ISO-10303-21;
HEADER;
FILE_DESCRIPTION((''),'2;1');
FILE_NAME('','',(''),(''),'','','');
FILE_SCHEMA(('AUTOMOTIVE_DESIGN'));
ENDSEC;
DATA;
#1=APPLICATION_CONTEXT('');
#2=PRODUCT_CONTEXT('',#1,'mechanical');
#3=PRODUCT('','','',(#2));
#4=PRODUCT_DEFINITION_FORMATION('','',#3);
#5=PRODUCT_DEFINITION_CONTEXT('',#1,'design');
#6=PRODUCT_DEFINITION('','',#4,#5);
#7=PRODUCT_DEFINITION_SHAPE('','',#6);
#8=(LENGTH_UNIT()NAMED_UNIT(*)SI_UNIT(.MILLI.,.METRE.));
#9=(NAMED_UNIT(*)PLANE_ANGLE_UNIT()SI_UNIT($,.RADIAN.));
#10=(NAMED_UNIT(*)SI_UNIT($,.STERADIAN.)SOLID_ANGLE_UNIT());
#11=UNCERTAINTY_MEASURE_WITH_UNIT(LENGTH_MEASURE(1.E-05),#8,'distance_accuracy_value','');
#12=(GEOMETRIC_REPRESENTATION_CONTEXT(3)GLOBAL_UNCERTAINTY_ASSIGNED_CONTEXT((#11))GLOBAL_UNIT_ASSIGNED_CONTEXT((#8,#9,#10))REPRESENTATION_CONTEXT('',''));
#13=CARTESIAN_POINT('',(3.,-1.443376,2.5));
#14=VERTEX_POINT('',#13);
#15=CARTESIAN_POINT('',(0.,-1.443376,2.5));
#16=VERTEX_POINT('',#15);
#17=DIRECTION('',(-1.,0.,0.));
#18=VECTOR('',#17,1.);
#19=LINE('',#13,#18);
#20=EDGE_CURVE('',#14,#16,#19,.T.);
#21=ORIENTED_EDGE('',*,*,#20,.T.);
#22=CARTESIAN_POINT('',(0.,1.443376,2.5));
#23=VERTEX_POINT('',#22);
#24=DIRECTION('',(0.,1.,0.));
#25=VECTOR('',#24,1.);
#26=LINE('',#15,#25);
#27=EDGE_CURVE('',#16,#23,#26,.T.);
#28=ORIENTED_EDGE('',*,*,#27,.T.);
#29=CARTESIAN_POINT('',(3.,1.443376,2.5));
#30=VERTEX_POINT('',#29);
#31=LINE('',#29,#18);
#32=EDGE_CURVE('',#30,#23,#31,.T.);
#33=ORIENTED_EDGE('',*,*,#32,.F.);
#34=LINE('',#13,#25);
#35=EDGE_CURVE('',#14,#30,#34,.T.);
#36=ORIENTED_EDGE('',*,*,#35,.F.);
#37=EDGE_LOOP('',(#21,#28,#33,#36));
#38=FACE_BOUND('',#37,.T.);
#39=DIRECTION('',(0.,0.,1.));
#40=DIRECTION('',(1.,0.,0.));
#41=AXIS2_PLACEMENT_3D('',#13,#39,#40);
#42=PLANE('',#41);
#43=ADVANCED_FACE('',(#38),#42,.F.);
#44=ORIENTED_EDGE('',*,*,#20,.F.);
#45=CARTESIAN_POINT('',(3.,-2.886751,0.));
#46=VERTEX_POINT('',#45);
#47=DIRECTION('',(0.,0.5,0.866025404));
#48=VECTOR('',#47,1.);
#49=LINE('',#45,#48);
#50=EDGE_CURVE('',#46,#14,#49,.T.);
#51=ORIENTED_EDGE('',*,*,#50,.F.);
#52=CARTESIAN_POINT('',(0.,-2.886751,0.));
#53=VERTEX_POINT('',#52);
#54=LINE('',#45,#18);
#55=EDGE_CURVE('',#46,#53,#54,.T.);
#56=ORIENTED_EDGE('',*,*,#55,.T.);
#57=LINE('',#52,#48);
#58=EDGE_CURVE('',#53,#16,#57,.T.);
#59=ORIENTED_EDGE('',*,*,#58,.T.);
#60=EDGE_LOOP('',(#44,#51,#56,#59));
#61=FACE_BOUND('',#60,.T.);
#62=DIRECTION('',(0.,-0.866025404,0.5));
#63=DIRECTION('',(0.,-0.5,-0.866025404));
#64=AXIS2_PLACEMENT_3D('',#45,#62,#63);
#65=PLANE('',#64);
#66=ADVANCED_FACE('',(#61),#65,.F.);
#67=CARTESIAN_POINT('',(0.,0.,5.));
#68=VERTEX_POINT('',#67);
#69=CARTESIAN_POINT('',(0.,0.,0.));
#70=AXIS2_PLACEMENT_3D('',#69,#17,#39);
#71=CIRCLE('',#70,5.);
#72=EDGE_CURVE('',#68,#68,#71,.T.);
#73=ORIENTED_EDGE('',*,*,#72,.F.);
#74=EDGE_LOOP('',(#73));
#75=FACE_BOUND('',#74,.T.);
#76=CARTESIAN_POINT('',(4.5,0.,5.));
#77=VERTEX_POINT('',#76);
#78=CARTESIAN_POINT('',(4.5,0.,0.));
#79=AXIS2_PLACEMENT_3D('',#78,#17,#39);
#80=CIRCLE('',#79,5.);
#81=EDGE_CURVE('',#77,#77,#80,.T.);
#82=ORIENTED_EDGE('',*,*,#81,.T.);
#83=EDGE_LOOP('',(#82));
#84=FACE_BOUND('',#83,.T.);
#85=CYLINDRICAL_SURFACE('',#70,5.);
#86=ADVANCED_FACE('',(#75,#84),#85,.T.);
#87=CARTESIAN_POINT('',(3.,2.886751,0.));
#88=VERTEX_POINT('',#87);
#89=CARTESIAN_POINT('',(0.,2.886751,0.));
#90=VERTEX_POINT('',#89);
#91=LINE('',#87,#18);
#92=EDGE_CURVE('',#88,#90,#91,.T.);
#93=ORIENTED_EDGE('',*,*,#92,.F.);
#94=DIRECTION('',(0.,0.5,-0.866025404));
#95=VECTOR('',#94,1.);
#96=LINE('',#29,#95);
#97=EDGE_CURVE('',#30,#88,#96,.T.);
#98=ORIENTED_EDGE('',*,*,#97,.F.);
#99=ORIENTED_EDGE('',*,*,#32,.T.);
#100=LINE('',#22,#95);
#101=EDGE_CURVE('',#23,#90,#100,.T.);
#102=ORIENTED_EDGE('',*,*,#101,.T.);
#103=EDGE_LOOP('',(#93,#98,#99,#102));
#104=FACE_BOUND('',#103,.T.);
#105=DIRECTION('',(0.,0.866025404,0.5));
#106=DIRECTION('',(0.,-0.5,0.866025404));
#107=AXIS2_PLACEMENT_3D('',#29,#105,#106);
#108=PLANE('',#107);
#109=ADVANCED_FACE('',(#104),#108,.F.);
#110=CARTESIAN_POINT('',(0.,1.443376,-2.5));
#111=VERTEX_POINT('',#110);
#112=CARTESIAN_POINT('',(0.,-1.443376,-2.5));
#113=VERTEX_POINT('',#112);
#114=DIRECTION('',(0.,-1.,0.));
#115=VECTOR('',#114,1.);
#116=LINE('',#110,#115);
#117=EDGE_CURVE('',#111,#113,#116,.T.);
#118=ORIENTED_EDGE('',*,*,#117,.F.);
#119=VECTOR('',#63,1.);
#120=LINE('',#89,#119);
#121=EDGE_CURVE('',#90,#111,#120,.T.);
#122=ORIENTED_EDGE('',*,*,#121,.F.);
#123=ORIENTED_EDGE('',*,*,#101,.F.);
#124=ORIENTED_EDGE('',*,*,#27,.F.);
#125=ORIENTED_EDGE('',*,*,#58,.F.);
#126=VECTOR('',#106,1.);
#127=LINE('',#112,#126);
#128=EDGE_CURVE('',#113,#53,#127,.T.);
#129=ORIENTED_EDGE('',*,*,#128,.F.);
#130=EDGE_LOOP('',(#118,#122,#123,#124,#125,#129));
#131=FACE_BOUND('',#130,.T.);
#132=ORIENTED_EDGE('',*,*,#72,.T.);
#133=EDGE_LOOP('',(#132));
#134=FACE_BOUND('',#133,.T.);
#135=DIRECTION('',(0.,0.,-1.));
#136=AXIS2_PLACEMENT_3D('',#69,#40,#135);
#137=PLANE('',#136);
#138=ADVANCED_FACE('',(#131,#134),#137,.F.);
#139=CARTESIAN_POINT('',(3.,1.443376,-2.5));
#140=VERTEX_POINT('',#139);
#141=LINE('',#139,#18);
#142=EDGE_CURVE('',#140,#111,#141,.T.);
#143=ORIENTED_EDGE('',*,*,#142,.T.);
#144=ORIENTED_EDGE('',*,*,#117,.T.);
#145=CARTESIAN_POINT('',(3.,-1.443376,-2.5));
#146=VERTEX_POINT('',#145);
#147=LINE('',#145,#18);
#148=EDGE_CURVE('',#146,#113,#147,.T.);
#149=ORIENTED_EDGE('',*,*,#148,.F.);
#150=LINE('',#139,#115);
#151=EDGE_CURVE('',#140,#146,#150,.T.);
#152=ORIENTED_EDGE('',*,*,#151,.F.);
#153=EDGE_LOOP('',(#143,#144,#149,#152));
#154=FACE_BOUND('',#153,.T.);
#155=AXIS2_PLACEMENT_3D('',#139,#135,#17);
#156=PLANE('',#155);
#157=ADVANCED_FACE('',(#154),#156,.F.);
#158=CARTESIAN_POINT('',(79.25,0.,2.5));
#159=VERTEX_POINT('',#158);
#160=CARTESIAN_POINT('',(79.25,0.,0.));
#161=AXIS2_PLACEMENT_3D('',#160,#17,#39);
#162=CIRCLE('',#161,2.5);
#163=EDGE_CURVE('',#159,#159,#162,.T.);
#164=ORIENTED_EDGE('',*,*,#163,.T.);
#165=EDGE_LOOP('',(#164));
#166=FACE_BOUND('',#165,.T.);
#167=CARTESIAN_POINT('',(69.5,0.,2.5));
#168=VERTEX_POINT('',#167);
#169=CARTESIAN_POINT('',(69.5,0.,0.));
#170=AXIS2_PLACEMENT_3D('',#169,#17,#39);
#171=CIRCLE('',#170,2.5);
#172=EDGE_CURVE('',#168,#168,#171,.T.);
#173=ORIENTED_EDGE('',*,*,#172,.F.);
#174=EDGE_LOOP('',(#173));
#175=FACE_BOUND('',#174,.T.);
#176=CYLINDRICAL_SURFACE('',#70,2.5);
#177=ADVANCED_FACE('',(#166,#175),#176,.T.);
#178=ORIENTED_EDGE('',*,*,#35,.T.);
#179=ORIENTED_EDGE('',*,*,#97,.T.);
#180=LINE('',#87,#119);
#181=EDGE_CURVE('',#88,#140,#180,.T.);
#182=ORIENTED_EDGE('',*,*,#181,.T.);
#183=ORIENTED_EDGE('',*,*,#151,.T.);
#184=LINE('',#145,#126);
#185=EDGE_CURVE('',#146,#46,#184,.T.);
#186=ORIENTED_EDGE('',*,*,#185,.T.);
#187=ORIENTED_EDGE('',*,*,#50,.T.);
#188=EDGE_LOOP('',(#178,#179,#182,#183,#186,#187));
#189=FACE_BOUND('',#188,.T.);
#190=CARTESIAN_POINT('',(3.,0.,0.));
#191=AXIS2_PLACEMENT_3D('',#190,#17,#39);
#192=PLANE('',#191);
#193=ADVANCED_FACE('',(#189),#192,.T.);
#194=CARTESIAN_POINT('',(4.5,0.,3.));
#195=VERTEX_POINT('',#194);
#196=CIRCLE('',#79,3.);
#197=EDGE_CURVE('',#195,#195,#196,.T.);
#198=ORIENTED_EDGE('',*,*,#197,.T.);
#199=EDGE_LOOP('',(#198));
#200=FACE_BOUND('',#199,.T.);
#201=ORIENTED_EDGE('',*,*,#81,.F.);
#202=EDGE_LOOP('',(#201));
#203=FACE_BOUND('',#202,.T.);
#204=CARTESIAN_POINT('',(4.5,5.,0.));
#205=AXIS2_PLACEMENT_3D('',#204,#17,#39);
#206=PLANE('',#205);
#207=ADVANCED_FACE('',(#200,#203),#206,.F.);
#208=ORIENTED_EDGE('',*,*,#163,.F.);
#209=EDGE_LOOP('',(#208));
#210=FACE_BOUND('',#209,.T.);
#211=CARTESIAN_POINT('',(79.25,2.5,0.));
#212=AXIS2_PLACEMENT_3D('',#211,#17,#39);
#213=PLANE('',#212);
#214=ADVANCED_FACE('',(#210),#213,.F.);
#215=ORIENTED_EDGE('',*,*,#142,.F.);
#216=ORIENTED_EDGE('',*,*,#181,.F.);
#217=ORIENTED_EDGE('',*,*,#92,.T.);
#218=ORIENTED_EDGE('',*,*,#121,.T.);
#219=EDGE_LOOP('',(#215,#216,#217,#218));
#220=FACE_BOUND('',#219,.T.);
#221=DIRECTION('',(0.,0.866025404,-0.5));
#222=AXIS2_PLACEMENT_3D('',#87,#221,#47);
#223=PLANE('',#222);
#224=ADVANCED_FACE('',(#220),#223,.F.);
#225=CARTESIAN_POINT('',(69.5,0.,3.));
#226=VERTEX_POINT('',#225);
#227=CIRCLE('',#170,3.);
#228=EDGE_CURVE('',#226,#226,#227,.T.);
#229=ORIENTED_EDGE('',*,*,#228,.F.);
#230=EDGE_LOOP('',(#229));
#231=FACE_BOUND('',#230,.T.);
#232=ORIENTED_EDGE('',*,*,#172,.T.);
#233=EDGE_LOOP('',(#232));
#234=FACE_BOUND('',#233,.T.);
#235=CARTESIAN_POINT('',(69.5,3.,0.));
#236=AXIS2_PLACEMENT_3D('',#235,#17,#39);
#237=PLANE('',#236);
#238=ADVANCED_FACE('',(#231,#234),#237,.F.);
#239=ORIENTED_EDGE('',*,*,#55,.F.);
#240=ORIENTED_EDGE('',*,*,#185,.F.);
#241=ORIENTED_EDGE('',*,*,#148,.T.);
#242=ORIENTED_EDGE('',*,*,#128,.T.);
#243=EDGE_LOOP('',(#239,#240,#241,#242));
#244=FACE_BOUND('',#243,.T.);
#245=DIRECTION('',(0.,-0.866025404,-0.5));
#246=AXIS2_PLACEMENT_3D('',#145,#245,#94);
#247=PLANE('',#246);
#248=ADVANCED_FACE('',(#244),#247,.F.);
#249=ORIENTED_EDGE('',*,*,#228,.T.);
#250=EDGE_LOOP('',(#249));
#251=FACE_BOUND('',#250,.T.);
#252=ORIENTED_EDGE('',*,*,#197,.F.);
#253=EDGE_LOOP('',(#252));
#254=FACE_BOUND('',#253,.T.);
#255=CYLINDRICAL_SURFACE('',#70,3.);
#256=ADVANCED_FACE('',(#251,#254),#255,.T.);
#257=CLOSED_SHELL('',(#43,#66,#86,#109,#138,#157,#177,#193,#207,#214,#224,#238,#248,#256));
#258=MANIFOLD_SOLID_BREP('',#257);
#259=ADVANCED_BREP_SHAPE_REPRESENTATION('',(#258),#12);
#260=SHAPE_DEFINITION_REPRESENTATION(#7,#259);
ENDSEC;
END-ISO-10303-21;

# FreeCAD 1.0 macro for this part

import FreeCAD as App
import Part
import Sketcher
from FreeCAD import Vector
Q = App.Units.Quantity


def add_polygon(sketch, points):
    """Adds a closed chain of lines whose ends are joined by coincident constraints."""
    first, n = sketch.GeometryCount, len(points)
    for a, b in zip(points, points[1:] + points[:1]):
        sketch.addGeometry(Part.LineSegment(App.Vector(*a, 0), App.Vector(*b, 0)), False)
    for i in range(n):
        sketch.addConstraint(Sketcher.Constraint("Coincident", first + i, 2, first + (i + 1) % n, 1))

doc = App.newDocument("Part")
body = doc.addObject("PartDesign::Body", "Body")

# Sketch on XY plane
sketch1 = body.newObject("Sketcher::SketchObject", "Sketch")
sketch1.AttachmentSupport = (doc.getObject("XY_Plane"), [""])
sketch1.MapMode = "FlatFace"
add_polygon(sketch1, [(0, 5), (0, 0), (79.2, 0), (79.2, 2.5), (69.5, 2.5), (69.5, 3), (4.5, 3), (4.5, 5)])  # lines 0-7
sketch1.addConstraint([
    Sketcher.Constraint("Vertical", 0),
    Sketcher.Constraint("Horizontal", 1),
    Sketcher.Constraint("Vertical", 2),
    Sketcher.Constraint("Horizontal", 3),
    Sketcher.Constraint("Vertical", 4),
    Sketcher.Constraint("Horizontal", 5),
    Sketcher.Constraint("Vertical", 6),
    Sketcher.Constraint("Horizontal", 7),
    Sketcher.Constraint("Coincident", 0, 2, -1, 1),
    Sketcher.Constraint("DistanceX", 5, 2, 5, 1, Q("65 mm")),
    Sketcher.Constraint("DistanceY", 0, 2, 0, 1, Q("5 mm")),
    Sketcher.Constraint("DistanceY", 6, 1, 6, 2, Q("2 mm")),
    Sketcher.Constraint("DistanceX", 7, 2, 7, 1, Q("4.5 mm")),
    Sketcher.Constraint("DistanceY", 2, 1, 2, 2, Q("2.5 mm")),
    Sketcher.Constraint("DistanceX", 1, 1, 1, 2, Q("79.25 mm")),
])
revolution = body.newObject("PartDesign::Revolution", "Revolution")
revolution.Profile = sketch1
revolution.ReferenceAxis = (sketch1, ["H_Axis"])
revolution.Angle = 360

# Sketch on YZ plane
sketch2 = body.newObject("Sketcher::SketchObject", "Sketch001")
sketch2.AttachmentSupport = (doc.getObject("YZ_Plane"), [""])
sketch2.MapMode = "FlatFace"
add_polygon(sketch2, [(2.9, 0), (1.4, -2.5), (-1.4, -2.5), (-2.9, 0), (-1.4, 2.5), (1.4, 2.5)])  # lines 0-5
sketch2.addConstraint([
    Sketcher.Constraint("Horizontal", 1),
    Sketcher.Constraint("Horizontal", 4),
    Sketcher.Constraint("Symmetric", 0, 2, 3, 2, -1, 1),
    Sketcher.Constraint("Symmetric", 2, 2, 5, 2, -1, 1),
    Sketcher.Constraint("PointOnObject", 2, 2, -1),
    Sketcher.Constraint("Parallel", 2, 5),
    Sketcher.Constraint("Vertical", 1, 2, 3, 2),
    Sketcher.Constraint("Angle", 0, Q("-120 deg")),
    Sketcher.Constraint("DistanceY", 1, 2, 3, 2, Q("5 mm")),
    Sketcher.Constraint("DistanceX", 1, 2, 1, 1, Q("2.886751 mm")),
])
pocket1 = body.newObject("PartDesign::Pocket", "Pocket")
pocket1.Profile = sketch2
pocket1.Length = 3
pocket1.Reversed = True

doc.recompute()
